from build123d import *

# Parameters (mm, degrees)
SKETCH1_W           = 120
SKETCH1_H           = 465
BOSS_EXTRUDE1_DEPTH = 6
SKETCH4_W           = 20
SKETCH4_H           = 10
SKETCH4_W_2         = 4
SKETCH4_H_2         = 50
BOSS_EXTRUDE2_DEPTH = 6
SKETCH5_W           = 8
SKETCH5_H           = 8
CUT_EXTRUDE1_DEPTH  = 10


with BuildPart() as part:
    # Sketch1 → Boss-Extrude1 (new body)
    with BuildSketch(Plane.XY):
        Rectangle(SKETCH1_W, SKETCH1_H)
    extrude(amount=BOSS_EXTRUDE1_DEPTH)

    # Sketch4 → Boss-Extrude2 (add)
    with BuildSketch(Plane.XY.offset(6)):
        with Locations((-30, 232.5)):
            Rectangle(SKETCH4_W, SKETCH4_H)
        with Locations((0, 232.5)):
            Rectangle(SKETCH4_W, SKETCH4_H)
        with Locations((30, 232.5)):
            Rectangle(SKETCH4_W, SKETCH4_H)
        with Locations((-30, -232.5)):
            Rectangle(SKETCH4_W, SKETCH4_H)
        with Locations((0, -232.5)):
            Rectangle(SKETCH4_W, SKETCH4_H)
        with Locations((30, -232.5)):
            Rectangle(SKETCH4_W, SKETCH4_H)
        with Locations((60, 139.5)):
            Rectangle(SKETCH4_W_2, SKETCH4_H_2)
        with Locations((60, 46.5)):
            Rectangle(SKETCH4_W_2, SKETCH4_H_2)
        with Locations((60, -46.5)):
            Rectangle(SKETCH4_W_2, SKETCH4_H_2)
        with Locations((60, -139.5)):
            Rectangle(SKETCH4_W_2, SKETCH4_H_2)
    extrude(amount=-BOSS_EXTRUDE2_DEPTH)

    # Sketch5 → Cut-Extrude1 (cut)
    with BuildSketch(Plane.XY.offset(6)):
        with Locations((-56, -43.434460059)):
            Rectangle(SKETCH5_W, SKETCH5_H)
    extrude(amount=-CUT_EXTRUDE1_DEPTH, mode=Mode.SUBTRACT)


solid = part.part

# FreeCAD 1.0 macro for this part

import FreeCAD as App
import Part
import Sketcher
from FreeCAD import Vector
Q = App.Units.Quantity

doc = App.newDocument("Part")
body = doc.addObject("PartDesign::Body", "Body")

# Sketch on XY plane
sketch1 = body.newObject("Sketcher::SketchObject", "Sketch")
sketch1.AttachmentSupport = (doc.getObject("XY_Plane"), [""])
sketch1.MapMode = "FlatFace"
sketch1.addGeometry([
    Part.LineSegment(Vector(-60, 232, 0), Vector(-60, -232, 0)),
    Part.LineSegment(Vector(-60, -232, 0), Vector(60, -232, 0)),
    Part.LineSegment(Vector(60, -232, 0), Vector(60, 232, 0)),
    Part.LineSegment(Vector(60, 232, 0), Vector(-60, 232, 0)),
], False)
sketch1.addConstraint([
    Sketcher.Constraint("Coincident", 0, 2, 1, 1),
    Sketcher.Constraint("Coincident", 1, 2, 2, 1),
    Sketcher.Constraint("Coincident", 2, 2, 3, 1),
    Sketcher.Constraint("Coincident", 3, 2, 0, 1),
    Sketcher.Constraint("Vertical", 0),
    Sketcher.Constraint("Horizontal", 1),
    Sketcher.Constraint("Vertical", 2),
    Sketcher.Constraint("Horizontal", 3),
    Sketcher.Constraint("Symmetric", 0, 2, 2, 2, -1, 1),
    Sketcher.Constraint("DistanceX", 1, 1, 1, 2, Q("120 mm")),
    Sketcher.Constraint("DistanceY", 0, 2, 0, 1, Q("465 mm")),
])
pad1 = body.newObject("PartDesign::Pad", "Pad")
pad1.Profile = sketch1
pad1.Length = 6

# Sketch on XY plane
sketch2 = body.newObject("Sketcher::SketchObject", "Sketch001")
sketch2.AttachmentSupport = (doc.getObject("XY_Plane"), [""])
sketch2.MapMode = "FlatFace"
sketch2.AttachmentOffset = App.Placement(Vector(0, 0, 6), App.Rotation())
sketch2.addGeometry([
    Part.LineSegment(Vector(-40, 237.5, 0), Vector(-40, 227.5, 0)),  # 0
    Part.LineSegment(Vector(-40, 227.5, 0), Vector(-20, 227.5, 0)),  # 1
    Part.LineSegment(Vector(-20, 227.5, 0), Vector(-20, 237.5, 0)),  # 2
    Part.LineSegment(Vector(-20, 237.5, 0), Vector(-40, 237.5, 0)),  # 3
    Part.LineSegment(Vector(-10, 237.5, 0), Vector(-10, 227.5, 0)),  # 4
    Part.LineSegment(Vector(-10, 227.5, 0), Vector(10, 227.5, 0)),  # 5
    Part.LineSegment(Vector(10, 227.5, 0), Vector(10, 237.5, 0)),  # 6
    Part.LineSegment(Vector(10, 237.5, 0), Vector(-10, 237.5, 0)),  # 7
    Part.LineSegment(Vector(20, 237.5, 0), Vector(20, 227.5, 0)),  # 8
    Part.LineSegment(Vector(20, 227.5, 0), Vector(40, 227.5, 0)),  # 9
    Part.LineSegment(Vector(40, 227.5, 0), Vector(40, 237.5, 0)),  # 10
    Part.LineSegment(Vector(40, 237.5, 0), Vector(20, 237.5, 0)),  # 11
    Part.LineSegment(Vector(-40, -227.5, 0), Vector(-40, -237.5, 0)),  # 12
    Part.LineSegment(Vector(-40, -237.5, 0), Vector(-20, -237.5, 0)),  # 13
    Part.LineSegment(Vector(-20, -237.5, 0), Vector(-20, -227.5, 0)),  # 14
    Part.LineSegment(Vector(-20, -227.5, 0), Vector(-40, -227.5, 0)),  # 15
    Part.LineSegment(Vector(-10, -227.5, 0), Vector(-10, -237.5, 0)),  # 16
    Part.LineSegment(Vector(-10, -237.5, 0), Vector(10, -237.5, 0)),  # 17
    Part.LineSegment(Vector(10, -237.5, 0), Vector(10, -227.5, 0)),  # 18
    Part.LineSegment(Vector(10, -227.5, 0), Vector(-10, -227.5, 0)),  # 19
    Part.LineSegment(Vector(20, -227.5, 0), Vector(20, -237.5, 0)),  # 20
    Part.LineSegment(Vector(20, -237.5, 0), Vector(40, -237.5, 0)),  # 21
    Part.LineSegment(Vector(40, -237.5, 0), Vector(40, -227.5, 0)),  # 22
    Part.LineSegment(Vector(40, -227.5, 0), Vector(20, -227.5, 0)),  # 23
    Part.LineSegment(Vector(58, 164.5, 0), Vector(58, 114.5, 0)),  # 24
    Part.LineSegment(Vector(58, 114.5, 0), Vector(62, 114.5, 0)),  # 25
    Part.LineSegment(Vector(62, 114.5, 0), Vector(62, 164.5, 0)),  # 26
    Part.LineSegment(Vector(62, 164.5, 0), Vector(58, 164.5, 0)),  # 27
    Part.LineSegment(Vector(58, 71.5, 0), Vector(58, 21.5, 0)),  # 28
    Part.LineSegment(Vector(58, 21.5, 0), Vector(62, 21.5, 0)),  # 29
    Part.LineSegment(Vector(62, 21.5, 0), Vector(62, 71.5, 0)),  # 30
    Part.LineSegment(Vector(62, 71.5, 0), Vector(58, 71.5, 0)),  # 31
    Part.LineSegment(Vector(58, -21.5, 0), Vector(58, -71.5, 0)),  # 32
    Part.LineSegment(Vector(58, -71.5, 0), Vector(62, -71.5, 0)),  # 33
    Part.LineSegment(Vector(62, -71.5, 0), Vector(62, -21.5, 0)),  # 34
    Part.LineSegment(Vector(62, -21.5, 0), Vector(58, -21.5, 0)),  # 35
    Part.LineSegment(Vector(58, -114.5, 0), Vector(58, -164.5, 0)),  # 36
    Part.LineSegment(Vector(58, -164.5, 0), Vector(62, -164.5, 0)),  # 37
    Part.LineSegment(Vector(62, -164.5, 0), Vector(62, -114.5, 0)),  # 38
    Part.LineSegment(Vector(62, -114.5, 0), Vector(58, -114.5, 0)),  # 39
], False)
sketch2.addConstraint([
    Sketcher.Constraint("Coincident", 0, 2, 1, 1),
    Sketcher.Constraint("Coincident", 1, 2, 2, 1),
    Sketcher.Constraint("Coincident", 2, 2, 3, 1),
    Sketcher.Constraint("Coincident", 3, 2, 0, 1),
    Sketcher.Constraint("Coincident", 4, 2, 5, 1),
    Sketcher.Constraint("Coincident", 5, 2, 6, 1),
    Sketcher.Constraint("Coincident", 6, 2, 7, 1),
    Sketcher.Constraint("Coincident", 7, 2, 4, 1),
    Sketcher.Constraint("Coincident", 8, 2, 9, 1),
    Sketcher.Constraint("Coincident", 9, 2, 10, 1),
    Sketcher.Constraint("Coincident", 10, 2, 11, 1),
    Sketcher.Constraint("Coincident", 11, 2, 8, 1),
    Sketcher.Constraint("Coincident", 12, 2, 13, 1),
    Sketcher.Constraint("Coincident", 13, 2, 14, 1),
    Sketcher.Constraint("Coincident", 14, 2, 15, 1),
    Sketcher.Constraint("Coincident", 15, 2, 12, 1),
    Sketcher.Constraint("Coincident", 16, 2, 17, 1),
    Sketcher.Constraint("Coincident", 17, 2, 18, 1),
    Sketcher.Constraint("Coincident", 18, 2, 19, 1),
    Sketcher.Constraint("Coincident", 19, 2, 16, 1),
    Sketcher.Constraint("Coincident", 20, 2, 21, 1),
    Sketcher.Constraint("Coincident", 21, 2, 22, 1),
    Sketcher.Constraint("Coincident", 22, 2, 23, 1),
    Sketcher.Constraint("Coincident", 23, 2, 20, 1),
    Sketcher.Constraint("Coincident", 24, 2, 25, 1),
    Sketcher.Constraint("Coincident", 25, 2, 26, 1),
    Sketcher.Constraint("Coincident", 26, 2, 27, 1),
    Sketcher.Constraint("Coincident", 27, 2, 24, 1),
    Sketcher.Constraint("Coincident", 28, 2, 29, 1),
    Sketcher.Constraint("Coincident", 29, 2, 30, 1),
    Sketcher.Constraint("Coincident", 30, 2, 31, 1),
    Sketcher.Constraint("Coincident", 31, 2, 28, 1),
    Sketcher.Constraint("Coincident", 32, 2, 33, 1),
    Sketcher.Constraint("Coincident", 33, 2, 34, 1),
    Sketcher.Constraint("Coincident", 34, 2, 35, 1),
    Sketcher.Constraint("Coincident", 35, 2, 32, 1),
    Sketcher.Constraint("Coincident", 36, 2, 37, 1),
    Sketcher.Constraint("Coincident", 37, 2, 38, 1),
    Sketcher.Constraint("Coincident", 38, 2, 39, 1),
    Sketcher.Constraint("Coincident", 39, 2, 36, 1),
    Sketcher.Constraint("Vertical", 0),
    Sketcher.Constraint("Horizontal", 1),
    Sketcher.Constraint("Vertical", 2),
    Sketcher.Constraint("Horizontal", 3),
    Sketcher.Constraint("Vertical", 4),
    Sketcher.Constraint("Horizontal", 5),
    Sketcher.Constraint("Vertical", 6),
    Sketcher.Constraint("Horizontal", 7),
    Sketcher.Constraint("Vertical", 8),
    Sketcher.Constraint("Horizontal", 9),
    Sketcher.Constraint("Vertical", 10),
    Sketcher.Constraint("Horizontal", 11),
    Sketcher.Constraint("Vertical", 12),
    Sketcher.Constraint("Horizontal", 13),
    Sketcher.Constraint("Vertical", 14),
    Sketcher.Constraint("Horizontal", 15),
    Sketcher.Constraint("Vertical", 16),
    Sketcher.Constraint("Horizontal", 17),
    Sketcher.Constraint("Vertical", 18),
    Sketcher.Constraint("Horizontal", 19),
    Sketcher.Constraint("Vertical", 20),
    Sketcher.Constraint("Horizontal", 21),
    Sketcher.Constraint("Vertical", 22),
    Sketcher.Constraint("Horizontal", 23),
    Sketcher.Constraint("Vertical", 24),
    Sketcher.Constraint("Horizontal", 25),
    Sketcher.Constraint("Vertical", 26),
    Sketcher.Constraint("Horizontal", 27),
    Sketcher.Constraint("Vertical", 28),
    Sketcher.Constraint("Horizontal", 29),
    Sketcher.Constraint("Vertical", 30),
    Sketcher.Constraint("Horizontal", 31),
    Sketcher.Constraint("Vertical", 32),
    Sketcher.Constraint("Horizontal", 33),
    Sketcher.Constraint("Vertical", 34),
    Sketcher.Constraint("Horizontal", 35),
    Sketcher.Constraint("Vertical", 36),
    Sketcher.Constraint("Horizontal", 37),
    Sketcher.Constraint("Vertical", 38),
    Sketcher.Constraint("Horizontal", 39),
    Sketcher.Constraint("Symmetric", 10, 2, 12, 2, -1, 1),
    Sketcher.Constraint("Symmetric", 8, 2, 14, 2, -1, 1),
    Sketcher.Constraint("Symmetric", 6, 2, 16, 2, -1, 1),
    Sketcher.Constraint("Symmetric", 4, 2, 18, 2, -1, 1),
    Sketcher.Constraint("Symmetric", 2, 2, 20, 2, -1, 1),
    Sketcher.Constraint("Symmetric", 0, 2, 22, 2, -1, 1),
    Sketcher.Constraint("Symmetric", 1, 2, 8, 2, -2),
    Sketcher.Constraint("Symmetric", 3, 2, 10, 2, -2),
    Sketcher.Constraint("Symmetric", 31, 2, 32, 2, -1),
    Sketcher.Constraint("Symmetric", 29, 2, 34, 2, -1),
    Sketcher.Constraint("Symmetric", 27, 2, 36, 2, -1),
    Sketcher.Constraint("Symmetric", 25, 2, 38, 2, -1),
    Sketcher.Constraint("Horizontal", 1, 2, 4, 2),
    Sketcher.Constraint("Horizontal", 3, 2, 6, 2),
    Sketcher.Constraint("Vertical", 7, 2, 16, 2),
    Sketcher.Constraint("Vertical", 27, 2, 28, 2),
    Sketcher.Constraint("Vertical", 26, 2, 29, 2),
    Sketcher.Constraint("Equal", 3, 5),
    Sketcher.Constraint("Equal", 26, 28),
    Sketcher.Constraint("DistanceX", 1, 1, 1, 2, Q("20 mm")),
    Sketcher.Constraint("DistanceX", 25, 1, 25, 2, Q("4 mm")),
    Sketcher.Constraint("DistanceY", 0, 2, 0, 1, Q("10 mm")),
    Sketcher.Constraint("DistanceY", 24, 2, 24, 1, Q("50 mm")),
    Sketcher.Constraint("DistanceX", 0, 2, -1, 1, Q("40 mm")),
    Sketcher.Constraint("DistanceX", -1, 1, 24, 2, Q("58 mm")),
    Sketcher.Constraint("DistanceY", 12, 2, 0, 2, Q("465 mm")),
    Sketcher.Constraint("DistanceY", 24, 2, 9, 2, Q("113 mm")),
    Sketcher.Constraint("DistanceY", 28, 2, 24, 2, Q("93 mm")),
])
pad2 = body.newObject("PartDesign::Pad", "Pad001")
pad2.Profile = sketch2
pad2.Length = 6
pad2.Reversed = True

# Sketch on XY plane
sketch3 = body.newObject("Sketcher::SketchObject", "Sketch002")
sketch3.AttachmentSupport = (doc.getObject("XY_Plane"), [""])
sketch3.MapMode = "FlatFace"
sketch3.AttachmentOffset = App.Placement(Vector(0, 0, 6), App.Rotation())
sketch3.addGeometry([
    Part.LineSegment(Vector(-60, -39, 0), Vector(-60, -47, 0)),
    Part.LineSegment(Vector(-60, -47, 0), Vector(-52, -47, 0)),
    Part.LineSegment(Vector(-52, -47, 0), Vector(-52, -39, 0)),
    Part.LineSegment(Vector(-52, -39, 0), Vector(-60, -39, 0)),
], False)
sketch3.addConstraint([
    Sketcher.Constraint("Coincident", 0, 2, 1, 1),
    Sketcher.Constraint("Coincident", 1, 2, 2, 1),
    Sketcher.Constraint("Coincident", 2, 2, 3, 1),
    Sketcher.Constraint("Coincident", 3, 2, 0, 1),
    Sketcher.Constraint("Vertical", 0),
    Sketcher.Constraint("Horizontal", 1),
    Sketcher.Constraint("Vertical", 2),
    Sketcher.Constraint("Horizontal", 3),
    Sketcher.Constraint("Equal", 3, 0),
    Sketcher.Constraint("DistanceX", 1, 1, 1, 2, Q("8 mm")),
    Sketcher.Constraint("DistanceX", 0, 2, -1, 1, Q("60 mm")),
    Sketcher.Constraint("DistanceY", 0, 2, -1, 1, Q("47.43446 mm")),
])
pocket1 = body.newObject("PartDesign::Pocket", "Pocket")
pocket1.Profile = sketch3
pocket1.Length = 10

doc.recompute()
